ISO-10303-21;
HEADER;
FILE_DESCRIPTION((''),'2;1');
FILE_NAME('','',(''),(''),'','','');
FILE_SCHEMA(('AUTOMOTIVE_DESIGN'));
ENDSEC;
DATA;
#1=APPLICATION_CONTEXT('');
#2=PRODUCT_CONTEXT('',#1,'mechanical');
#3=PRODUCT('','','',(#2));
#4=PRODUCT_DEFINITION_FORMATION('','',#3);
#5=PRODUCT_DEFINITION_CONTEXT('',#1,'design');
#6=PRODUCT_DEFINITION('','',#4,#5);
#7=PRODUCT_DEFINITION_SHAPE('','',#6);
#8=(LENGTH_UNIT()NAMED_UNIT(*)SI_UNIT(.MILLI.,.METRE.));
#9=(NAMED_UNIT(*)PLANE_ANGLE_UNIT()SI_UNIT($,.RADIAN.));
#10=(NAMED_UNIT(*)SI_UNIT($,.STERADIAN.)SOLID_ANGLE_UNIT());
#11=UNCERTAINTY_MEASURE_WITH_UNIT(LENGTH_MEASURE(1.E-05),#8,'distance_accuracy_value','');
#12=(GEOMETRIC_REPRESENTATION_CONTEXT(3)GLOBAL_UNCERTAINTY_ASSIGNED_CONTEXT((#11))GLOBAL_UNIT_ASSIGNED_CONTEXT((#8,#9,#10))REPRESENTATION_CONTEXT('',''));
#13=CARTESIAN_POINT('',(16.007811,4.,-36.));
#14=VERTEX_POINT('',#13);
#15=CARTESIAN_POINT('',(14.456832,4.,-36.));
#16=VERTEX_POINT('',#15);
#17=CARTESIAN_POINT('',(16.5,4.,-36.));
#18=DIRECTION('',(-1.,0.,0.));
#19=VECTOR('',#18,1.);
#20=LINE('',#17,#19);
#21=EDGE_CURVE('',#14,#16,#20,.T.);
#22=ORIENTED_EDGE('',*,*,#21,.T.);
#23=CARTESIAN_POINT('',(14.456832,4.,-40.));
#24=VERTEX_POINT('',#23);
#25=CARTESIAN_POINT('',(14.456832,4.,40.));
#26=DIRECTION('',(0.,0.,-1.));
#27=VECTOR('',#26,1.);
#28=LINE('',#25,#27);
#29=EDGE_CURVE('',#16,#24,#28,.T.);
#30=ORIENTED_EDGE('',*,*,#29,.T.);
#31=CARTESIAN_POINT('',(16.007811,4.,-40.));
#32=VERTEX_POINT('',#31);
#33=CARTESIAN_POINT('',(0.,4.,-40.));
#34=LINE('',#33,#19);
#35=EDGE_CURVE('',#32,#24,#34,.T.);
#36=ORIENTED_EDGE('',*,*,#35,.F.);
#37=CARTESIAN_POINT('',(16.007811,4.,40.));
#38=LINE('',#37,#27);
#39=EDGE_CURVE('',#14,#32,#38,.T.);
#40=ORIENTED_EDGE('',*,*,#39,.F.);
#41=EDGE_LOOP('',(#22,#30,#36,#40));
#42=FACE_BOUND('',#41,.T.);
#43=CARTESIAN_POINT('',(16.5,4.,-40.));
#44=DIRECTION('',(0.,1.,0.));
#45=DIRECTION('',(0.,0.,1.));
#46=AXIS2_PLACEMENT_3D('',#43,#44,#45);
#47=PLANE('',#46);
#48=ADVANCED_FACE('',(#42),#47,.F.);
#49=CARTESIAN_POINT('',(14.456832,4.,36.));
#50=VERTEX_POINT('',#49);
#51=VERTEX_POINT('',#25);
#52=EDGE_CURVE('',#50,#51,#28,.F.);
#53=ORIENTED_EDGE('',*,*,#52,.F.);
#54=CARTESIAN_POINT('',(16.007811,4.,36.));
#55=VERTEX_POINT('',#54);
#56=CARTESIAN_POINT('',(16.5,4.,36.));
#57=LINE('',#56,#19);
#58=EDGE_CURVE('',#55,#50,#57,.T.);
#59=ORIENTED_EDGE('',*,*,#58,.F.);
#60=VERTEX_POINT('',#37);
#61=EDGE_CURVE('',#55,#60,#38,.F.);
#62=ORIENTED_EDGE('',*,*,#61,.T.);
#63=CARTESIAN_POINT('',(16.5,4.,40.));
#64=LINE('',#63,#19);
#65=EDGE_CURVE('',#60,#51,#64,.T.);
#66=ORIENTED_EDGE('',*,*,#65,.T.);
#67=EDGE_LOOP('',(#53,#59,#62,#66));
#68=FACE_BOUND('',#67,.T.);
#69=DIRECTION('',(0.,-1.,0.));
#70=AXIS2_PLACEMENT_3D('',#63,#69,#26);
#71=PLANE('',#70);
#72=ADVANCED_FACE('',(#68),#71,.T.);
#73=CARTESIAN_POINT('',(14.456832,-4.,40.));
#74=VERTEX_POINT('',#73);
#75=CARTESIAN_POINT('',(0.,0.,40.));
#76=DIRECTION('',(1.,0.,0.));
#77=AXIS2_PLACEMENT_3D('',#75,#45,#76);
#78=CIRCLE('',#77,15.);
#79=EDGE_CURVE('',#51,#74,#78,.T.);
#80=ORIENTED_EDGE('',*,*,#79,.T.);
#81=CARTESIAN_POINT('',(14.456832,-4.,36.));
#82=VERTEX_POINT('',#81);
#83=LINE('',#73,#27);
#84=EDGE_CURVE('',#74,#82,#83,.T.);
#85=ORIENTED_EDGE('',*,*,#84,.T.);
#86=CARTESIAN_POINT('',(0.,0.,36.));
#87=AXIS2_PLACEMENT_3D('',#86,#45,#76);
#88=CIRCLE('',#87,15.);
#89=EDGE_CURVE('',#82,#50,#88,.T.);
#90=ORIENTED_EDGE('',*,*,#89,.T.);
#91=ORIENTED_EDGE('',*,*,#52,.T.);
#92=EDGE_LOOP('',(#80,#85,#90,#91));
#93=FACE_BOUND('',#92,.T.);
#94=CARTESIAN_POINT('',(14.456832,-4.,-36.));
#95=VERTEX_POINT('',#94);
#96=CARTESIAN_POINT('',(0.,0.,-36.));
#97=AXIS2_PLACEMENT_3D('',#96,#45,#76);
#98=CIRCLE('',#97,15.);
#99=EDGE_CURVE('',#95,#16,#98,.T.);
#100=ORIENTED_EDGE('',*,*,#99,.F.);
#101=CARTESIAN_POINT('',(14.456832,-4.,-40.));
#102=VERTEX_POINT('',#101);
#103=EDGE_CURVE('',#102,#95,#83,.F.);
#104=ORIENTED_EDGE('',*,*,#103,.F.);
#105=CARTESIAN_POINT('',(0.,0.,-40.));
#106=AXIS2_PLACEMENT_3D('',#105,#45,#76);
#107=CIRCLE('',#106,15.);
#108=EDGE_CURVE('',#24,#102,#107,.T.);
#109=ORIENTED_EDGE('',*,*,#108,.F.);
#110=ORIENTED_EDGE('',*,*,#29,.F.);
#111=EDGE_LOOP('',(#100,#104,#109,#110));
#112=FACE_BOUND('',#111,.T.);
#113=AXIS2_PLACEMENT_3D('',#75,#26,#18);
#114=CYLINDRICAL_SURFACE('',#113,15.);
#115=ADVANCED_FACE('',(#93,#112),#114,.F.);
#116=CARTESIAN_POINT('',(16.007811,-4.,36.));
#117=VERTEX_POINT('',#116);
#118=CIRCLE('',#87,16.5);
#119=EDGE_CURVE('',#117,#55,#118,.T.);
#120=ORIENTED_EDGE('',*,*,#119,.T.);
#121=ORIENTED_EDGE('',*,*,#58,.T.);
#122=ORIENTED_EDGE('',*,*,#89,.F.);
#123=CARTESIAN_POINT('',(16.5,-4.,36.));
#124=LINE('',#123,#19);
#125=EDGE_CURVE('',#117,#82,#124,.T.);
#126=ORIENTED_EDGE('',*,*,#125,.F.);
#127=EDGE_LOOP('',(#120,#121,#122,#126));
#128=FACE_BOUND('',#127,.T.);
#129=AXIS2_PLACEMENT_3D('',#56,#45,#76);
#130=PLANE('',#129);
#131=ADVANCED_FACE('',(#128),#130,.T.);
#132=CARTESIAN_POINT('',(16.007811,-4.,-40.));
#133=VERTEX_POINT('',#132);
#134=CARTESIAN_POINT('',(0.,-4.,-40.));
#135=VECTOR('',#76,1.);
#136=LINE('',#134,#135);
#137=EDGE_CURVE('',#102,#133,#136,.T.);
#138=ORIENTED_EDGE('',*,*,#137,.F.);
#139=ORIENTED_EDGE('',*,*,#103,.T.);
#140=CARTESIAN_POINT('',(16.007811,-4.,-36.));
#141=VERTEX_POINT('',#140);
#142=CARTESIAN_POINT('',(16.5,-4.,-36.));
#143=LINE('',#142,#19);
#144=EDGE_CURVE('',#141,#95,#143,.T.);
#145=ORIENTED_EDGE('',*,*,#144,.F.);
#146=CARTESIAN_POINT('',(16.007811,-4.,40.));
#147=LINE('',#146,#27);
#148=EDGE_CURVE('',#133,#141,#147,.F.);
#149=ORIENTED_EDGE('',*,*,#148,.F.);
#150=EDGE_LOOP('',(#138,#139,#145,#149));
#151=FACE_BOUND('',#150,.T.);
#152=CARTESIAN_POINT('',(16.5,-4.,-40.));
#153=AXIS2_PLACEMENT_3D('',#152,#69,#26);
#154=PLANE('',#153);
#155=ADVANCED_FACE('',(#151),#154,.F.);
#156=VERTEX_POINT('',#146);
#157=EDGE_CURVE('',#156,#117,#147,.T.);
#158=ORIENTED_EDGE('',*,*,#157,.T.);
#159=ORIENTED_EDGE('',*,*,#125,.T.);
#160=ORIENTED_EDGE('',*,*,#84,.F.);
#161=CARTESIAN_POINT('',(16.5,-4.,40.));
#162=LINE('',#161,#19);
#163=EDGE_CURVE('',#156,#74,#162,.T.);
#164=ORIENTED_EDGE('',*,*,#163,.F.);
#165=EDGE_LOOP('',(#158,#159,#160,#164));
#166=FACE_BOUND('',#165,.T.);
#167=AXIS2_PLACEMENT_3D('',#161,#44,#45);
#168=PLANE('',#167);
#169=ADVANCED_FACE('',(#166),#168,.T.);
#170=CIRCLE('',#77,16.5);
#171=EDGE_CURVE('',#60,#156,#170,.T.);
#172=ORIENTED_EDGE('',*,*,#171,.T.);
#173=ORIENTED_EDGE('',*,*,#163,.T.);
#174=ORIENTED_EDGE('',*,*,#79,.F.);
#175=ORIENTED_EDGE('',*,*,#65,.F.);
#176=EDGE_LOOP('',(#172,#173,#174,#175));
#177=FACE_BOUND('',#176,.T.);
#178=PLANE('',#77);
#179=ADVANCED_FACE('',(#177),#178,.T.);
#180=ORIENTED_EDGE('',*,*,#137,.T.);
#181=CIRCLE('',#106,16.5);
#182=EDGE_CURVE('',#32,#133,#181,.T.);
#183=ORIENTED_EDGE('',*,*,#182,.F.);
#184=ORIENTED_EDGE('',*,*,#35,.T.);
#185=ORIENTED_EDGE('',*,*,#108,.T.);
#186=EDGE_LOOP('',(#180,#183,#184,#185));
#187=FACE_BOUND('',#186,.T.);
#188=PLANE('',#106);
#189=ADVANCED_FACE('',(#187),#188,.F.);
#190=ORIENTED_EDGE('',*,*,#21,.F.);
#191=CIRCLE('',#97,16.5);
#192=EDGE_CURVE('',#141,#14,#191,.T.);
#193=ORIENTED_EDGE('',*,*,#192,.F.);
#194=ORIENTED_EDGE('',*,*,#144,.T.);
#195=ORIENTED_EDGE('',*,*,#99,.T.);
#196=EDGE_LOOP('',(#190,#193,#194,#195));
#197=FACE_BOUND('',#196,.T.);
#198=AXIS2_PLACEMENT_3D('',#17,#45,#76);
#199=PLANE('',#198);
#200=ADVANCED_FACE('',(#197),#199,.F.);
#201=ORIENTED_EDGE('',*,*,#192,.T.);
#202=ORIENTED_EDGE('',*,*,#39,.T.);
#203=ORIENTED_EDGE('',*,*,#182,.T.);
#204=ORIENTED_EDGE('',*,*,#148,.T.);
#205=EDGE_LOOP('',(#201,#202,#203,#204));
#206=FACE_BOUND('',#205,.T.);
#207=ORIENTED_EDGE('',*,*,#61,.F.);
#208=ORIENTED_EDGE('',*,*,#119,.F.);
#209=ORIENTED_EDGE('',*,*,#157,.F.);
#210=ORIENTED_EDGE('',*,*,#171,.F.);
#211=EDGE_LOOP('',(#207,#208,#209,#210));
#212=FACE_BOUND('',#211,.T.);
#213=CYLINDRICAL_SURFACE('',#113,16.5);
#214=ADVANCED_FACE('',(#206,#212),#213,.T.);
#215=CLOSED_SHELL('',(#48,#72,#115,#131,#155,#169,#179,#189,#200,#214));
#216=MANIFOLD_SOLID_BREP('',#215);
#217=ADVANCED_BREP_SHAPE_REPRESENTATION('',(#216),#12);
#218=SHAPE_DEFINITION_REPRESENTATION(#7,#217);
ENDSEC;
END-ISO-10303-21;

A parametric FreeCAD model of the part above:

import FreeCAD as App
import Part
import Sketcher
from FreeCAD import Vector


def add_polygon(sketch, points):
    """Adds a closed chain of lines whose ends are joined by coincident constraints."""
    first, n = sketch.GeometryCount, len(points)
    for a, b in zip(points, points[1:] + points[:1]):
        sketch.addGeometry(Part.LineSegment(App.Vector(*a, 0), App.Vector(*b, 0)), False)
    for i in range(n):
        sketch.addConstraint(Sketcher.Constraint("Coincident", first + i, 2, first + (i + 1) % n, 1))

doc = App.newDocument("Part")
params = doc.addObject("Spreadsheet::Sheet", "Params")
for row, (alias, value) in enumerate([
    ("sketch1_diameter", "33 mm"),
    ("sketch1_diameter2", "30 mm"),
    ("pad1_length", "80 mm"),
    ("sketch2_width", "8 mm"),
    ("sketch2_height", "4 mm"),
], start=1):
    params.set(f"A{row}", alias)
    params.set(f"B{row}", "=" + value)
    params.setAlias(f"B{row}", alias)

body = doc.addObject("PartDesign::Body", "Body")

# Sketch on XY plane
sketch1 = body.newObject("Sketcher::SketchObject", "Sketch")
sketch1.AttachmentSupport = (doc.getObject("XY_Plane"), [""])
sketch1.MapMode = "FlatFace"
sketch1.addGeometry([
    Part.Circle(Vector(0, 0, 0), Vector(0, 0, 1), 16.5),
    Part.Circle(Vector(0, 0, 0), Vector(0, 0, 1), 15),
], False)
sketch1.addConstraint([
    Sketcher.Constraint("Coincident", 0, 3, -1, 1),
    Sketcher.Constraint("Coincident", 1, 3, -1, 1),
    Sketcher.Constraint("Diameter", 0, 33.0),
    Sketcher.Constraint("Diameter", 1, 30.0),
])
sketch1.setExpression("Constraints[2]", "Params.sketch1_diameter")
sketch1.setExpression("Constraints[3]", "Params.sketch1_diameter2")
pad1 = body.newObject("PartDesign::Pad", "Pad")
pad1.Profile = sketch1
pad1.setExpression("Length", "Params.pad1_length")
pad1.Midplane = True

# Sketch on YZ plane
sketch2 = body.newObject("Sketcher::SketchObject", "Sketch001")
sketch2.AttachmentSupport = (doc.getObject("YZ_Plane"), [""])
sketch2.MapMode = "FlatFace"
add_polygon(sketch2, [(4, 40), (-4, 40), (-4, 36), (4, 36)])  # lines 0-3
sketch2.addConstraint([
    Sketcher.Constraint("Horizontal", 0),
    Sketcher.Constraint("Vertical", 1),
    Sketcher.Constraint("Horizontal", 2),
    Sketcher.Constraint("Vertical", 3),
    Sketcher.Constraint("DistanceX", 0, 2, 0, 1, 8.0),
    Sketcher.Constraint("DistanceY", 1, 2, 1, 1, 4.0),
    Sketcher.Constraint("DistanceX", 0, 2, -1, 1, 4.0),
    Sketcher.Constraint("DistanceY", -1, 1, 0, 2, 40.0),
])
sketch2.setExpression("Constraints[8]", "Params.sketch2_width")
sketch2.setExpression("Constraints[9]", "Params.sketch2_height")
pocket1 = body.newObject("PartDesign::Pocket", "Pocket")
pocket1.Profile = sketch2
pocket1.Type = "ThroughAll"
pocket1.Reversed = True
doc.recompute()

mirrored = body.newObject("PartDesign::Mirrored", "Mirrored")
mirrored.Originals = [pocket1]
mirrored.MirrorPlane = (doc.getObject("XY_Plane"), [""])
body.Tip = mirrored

doc.recompute()
